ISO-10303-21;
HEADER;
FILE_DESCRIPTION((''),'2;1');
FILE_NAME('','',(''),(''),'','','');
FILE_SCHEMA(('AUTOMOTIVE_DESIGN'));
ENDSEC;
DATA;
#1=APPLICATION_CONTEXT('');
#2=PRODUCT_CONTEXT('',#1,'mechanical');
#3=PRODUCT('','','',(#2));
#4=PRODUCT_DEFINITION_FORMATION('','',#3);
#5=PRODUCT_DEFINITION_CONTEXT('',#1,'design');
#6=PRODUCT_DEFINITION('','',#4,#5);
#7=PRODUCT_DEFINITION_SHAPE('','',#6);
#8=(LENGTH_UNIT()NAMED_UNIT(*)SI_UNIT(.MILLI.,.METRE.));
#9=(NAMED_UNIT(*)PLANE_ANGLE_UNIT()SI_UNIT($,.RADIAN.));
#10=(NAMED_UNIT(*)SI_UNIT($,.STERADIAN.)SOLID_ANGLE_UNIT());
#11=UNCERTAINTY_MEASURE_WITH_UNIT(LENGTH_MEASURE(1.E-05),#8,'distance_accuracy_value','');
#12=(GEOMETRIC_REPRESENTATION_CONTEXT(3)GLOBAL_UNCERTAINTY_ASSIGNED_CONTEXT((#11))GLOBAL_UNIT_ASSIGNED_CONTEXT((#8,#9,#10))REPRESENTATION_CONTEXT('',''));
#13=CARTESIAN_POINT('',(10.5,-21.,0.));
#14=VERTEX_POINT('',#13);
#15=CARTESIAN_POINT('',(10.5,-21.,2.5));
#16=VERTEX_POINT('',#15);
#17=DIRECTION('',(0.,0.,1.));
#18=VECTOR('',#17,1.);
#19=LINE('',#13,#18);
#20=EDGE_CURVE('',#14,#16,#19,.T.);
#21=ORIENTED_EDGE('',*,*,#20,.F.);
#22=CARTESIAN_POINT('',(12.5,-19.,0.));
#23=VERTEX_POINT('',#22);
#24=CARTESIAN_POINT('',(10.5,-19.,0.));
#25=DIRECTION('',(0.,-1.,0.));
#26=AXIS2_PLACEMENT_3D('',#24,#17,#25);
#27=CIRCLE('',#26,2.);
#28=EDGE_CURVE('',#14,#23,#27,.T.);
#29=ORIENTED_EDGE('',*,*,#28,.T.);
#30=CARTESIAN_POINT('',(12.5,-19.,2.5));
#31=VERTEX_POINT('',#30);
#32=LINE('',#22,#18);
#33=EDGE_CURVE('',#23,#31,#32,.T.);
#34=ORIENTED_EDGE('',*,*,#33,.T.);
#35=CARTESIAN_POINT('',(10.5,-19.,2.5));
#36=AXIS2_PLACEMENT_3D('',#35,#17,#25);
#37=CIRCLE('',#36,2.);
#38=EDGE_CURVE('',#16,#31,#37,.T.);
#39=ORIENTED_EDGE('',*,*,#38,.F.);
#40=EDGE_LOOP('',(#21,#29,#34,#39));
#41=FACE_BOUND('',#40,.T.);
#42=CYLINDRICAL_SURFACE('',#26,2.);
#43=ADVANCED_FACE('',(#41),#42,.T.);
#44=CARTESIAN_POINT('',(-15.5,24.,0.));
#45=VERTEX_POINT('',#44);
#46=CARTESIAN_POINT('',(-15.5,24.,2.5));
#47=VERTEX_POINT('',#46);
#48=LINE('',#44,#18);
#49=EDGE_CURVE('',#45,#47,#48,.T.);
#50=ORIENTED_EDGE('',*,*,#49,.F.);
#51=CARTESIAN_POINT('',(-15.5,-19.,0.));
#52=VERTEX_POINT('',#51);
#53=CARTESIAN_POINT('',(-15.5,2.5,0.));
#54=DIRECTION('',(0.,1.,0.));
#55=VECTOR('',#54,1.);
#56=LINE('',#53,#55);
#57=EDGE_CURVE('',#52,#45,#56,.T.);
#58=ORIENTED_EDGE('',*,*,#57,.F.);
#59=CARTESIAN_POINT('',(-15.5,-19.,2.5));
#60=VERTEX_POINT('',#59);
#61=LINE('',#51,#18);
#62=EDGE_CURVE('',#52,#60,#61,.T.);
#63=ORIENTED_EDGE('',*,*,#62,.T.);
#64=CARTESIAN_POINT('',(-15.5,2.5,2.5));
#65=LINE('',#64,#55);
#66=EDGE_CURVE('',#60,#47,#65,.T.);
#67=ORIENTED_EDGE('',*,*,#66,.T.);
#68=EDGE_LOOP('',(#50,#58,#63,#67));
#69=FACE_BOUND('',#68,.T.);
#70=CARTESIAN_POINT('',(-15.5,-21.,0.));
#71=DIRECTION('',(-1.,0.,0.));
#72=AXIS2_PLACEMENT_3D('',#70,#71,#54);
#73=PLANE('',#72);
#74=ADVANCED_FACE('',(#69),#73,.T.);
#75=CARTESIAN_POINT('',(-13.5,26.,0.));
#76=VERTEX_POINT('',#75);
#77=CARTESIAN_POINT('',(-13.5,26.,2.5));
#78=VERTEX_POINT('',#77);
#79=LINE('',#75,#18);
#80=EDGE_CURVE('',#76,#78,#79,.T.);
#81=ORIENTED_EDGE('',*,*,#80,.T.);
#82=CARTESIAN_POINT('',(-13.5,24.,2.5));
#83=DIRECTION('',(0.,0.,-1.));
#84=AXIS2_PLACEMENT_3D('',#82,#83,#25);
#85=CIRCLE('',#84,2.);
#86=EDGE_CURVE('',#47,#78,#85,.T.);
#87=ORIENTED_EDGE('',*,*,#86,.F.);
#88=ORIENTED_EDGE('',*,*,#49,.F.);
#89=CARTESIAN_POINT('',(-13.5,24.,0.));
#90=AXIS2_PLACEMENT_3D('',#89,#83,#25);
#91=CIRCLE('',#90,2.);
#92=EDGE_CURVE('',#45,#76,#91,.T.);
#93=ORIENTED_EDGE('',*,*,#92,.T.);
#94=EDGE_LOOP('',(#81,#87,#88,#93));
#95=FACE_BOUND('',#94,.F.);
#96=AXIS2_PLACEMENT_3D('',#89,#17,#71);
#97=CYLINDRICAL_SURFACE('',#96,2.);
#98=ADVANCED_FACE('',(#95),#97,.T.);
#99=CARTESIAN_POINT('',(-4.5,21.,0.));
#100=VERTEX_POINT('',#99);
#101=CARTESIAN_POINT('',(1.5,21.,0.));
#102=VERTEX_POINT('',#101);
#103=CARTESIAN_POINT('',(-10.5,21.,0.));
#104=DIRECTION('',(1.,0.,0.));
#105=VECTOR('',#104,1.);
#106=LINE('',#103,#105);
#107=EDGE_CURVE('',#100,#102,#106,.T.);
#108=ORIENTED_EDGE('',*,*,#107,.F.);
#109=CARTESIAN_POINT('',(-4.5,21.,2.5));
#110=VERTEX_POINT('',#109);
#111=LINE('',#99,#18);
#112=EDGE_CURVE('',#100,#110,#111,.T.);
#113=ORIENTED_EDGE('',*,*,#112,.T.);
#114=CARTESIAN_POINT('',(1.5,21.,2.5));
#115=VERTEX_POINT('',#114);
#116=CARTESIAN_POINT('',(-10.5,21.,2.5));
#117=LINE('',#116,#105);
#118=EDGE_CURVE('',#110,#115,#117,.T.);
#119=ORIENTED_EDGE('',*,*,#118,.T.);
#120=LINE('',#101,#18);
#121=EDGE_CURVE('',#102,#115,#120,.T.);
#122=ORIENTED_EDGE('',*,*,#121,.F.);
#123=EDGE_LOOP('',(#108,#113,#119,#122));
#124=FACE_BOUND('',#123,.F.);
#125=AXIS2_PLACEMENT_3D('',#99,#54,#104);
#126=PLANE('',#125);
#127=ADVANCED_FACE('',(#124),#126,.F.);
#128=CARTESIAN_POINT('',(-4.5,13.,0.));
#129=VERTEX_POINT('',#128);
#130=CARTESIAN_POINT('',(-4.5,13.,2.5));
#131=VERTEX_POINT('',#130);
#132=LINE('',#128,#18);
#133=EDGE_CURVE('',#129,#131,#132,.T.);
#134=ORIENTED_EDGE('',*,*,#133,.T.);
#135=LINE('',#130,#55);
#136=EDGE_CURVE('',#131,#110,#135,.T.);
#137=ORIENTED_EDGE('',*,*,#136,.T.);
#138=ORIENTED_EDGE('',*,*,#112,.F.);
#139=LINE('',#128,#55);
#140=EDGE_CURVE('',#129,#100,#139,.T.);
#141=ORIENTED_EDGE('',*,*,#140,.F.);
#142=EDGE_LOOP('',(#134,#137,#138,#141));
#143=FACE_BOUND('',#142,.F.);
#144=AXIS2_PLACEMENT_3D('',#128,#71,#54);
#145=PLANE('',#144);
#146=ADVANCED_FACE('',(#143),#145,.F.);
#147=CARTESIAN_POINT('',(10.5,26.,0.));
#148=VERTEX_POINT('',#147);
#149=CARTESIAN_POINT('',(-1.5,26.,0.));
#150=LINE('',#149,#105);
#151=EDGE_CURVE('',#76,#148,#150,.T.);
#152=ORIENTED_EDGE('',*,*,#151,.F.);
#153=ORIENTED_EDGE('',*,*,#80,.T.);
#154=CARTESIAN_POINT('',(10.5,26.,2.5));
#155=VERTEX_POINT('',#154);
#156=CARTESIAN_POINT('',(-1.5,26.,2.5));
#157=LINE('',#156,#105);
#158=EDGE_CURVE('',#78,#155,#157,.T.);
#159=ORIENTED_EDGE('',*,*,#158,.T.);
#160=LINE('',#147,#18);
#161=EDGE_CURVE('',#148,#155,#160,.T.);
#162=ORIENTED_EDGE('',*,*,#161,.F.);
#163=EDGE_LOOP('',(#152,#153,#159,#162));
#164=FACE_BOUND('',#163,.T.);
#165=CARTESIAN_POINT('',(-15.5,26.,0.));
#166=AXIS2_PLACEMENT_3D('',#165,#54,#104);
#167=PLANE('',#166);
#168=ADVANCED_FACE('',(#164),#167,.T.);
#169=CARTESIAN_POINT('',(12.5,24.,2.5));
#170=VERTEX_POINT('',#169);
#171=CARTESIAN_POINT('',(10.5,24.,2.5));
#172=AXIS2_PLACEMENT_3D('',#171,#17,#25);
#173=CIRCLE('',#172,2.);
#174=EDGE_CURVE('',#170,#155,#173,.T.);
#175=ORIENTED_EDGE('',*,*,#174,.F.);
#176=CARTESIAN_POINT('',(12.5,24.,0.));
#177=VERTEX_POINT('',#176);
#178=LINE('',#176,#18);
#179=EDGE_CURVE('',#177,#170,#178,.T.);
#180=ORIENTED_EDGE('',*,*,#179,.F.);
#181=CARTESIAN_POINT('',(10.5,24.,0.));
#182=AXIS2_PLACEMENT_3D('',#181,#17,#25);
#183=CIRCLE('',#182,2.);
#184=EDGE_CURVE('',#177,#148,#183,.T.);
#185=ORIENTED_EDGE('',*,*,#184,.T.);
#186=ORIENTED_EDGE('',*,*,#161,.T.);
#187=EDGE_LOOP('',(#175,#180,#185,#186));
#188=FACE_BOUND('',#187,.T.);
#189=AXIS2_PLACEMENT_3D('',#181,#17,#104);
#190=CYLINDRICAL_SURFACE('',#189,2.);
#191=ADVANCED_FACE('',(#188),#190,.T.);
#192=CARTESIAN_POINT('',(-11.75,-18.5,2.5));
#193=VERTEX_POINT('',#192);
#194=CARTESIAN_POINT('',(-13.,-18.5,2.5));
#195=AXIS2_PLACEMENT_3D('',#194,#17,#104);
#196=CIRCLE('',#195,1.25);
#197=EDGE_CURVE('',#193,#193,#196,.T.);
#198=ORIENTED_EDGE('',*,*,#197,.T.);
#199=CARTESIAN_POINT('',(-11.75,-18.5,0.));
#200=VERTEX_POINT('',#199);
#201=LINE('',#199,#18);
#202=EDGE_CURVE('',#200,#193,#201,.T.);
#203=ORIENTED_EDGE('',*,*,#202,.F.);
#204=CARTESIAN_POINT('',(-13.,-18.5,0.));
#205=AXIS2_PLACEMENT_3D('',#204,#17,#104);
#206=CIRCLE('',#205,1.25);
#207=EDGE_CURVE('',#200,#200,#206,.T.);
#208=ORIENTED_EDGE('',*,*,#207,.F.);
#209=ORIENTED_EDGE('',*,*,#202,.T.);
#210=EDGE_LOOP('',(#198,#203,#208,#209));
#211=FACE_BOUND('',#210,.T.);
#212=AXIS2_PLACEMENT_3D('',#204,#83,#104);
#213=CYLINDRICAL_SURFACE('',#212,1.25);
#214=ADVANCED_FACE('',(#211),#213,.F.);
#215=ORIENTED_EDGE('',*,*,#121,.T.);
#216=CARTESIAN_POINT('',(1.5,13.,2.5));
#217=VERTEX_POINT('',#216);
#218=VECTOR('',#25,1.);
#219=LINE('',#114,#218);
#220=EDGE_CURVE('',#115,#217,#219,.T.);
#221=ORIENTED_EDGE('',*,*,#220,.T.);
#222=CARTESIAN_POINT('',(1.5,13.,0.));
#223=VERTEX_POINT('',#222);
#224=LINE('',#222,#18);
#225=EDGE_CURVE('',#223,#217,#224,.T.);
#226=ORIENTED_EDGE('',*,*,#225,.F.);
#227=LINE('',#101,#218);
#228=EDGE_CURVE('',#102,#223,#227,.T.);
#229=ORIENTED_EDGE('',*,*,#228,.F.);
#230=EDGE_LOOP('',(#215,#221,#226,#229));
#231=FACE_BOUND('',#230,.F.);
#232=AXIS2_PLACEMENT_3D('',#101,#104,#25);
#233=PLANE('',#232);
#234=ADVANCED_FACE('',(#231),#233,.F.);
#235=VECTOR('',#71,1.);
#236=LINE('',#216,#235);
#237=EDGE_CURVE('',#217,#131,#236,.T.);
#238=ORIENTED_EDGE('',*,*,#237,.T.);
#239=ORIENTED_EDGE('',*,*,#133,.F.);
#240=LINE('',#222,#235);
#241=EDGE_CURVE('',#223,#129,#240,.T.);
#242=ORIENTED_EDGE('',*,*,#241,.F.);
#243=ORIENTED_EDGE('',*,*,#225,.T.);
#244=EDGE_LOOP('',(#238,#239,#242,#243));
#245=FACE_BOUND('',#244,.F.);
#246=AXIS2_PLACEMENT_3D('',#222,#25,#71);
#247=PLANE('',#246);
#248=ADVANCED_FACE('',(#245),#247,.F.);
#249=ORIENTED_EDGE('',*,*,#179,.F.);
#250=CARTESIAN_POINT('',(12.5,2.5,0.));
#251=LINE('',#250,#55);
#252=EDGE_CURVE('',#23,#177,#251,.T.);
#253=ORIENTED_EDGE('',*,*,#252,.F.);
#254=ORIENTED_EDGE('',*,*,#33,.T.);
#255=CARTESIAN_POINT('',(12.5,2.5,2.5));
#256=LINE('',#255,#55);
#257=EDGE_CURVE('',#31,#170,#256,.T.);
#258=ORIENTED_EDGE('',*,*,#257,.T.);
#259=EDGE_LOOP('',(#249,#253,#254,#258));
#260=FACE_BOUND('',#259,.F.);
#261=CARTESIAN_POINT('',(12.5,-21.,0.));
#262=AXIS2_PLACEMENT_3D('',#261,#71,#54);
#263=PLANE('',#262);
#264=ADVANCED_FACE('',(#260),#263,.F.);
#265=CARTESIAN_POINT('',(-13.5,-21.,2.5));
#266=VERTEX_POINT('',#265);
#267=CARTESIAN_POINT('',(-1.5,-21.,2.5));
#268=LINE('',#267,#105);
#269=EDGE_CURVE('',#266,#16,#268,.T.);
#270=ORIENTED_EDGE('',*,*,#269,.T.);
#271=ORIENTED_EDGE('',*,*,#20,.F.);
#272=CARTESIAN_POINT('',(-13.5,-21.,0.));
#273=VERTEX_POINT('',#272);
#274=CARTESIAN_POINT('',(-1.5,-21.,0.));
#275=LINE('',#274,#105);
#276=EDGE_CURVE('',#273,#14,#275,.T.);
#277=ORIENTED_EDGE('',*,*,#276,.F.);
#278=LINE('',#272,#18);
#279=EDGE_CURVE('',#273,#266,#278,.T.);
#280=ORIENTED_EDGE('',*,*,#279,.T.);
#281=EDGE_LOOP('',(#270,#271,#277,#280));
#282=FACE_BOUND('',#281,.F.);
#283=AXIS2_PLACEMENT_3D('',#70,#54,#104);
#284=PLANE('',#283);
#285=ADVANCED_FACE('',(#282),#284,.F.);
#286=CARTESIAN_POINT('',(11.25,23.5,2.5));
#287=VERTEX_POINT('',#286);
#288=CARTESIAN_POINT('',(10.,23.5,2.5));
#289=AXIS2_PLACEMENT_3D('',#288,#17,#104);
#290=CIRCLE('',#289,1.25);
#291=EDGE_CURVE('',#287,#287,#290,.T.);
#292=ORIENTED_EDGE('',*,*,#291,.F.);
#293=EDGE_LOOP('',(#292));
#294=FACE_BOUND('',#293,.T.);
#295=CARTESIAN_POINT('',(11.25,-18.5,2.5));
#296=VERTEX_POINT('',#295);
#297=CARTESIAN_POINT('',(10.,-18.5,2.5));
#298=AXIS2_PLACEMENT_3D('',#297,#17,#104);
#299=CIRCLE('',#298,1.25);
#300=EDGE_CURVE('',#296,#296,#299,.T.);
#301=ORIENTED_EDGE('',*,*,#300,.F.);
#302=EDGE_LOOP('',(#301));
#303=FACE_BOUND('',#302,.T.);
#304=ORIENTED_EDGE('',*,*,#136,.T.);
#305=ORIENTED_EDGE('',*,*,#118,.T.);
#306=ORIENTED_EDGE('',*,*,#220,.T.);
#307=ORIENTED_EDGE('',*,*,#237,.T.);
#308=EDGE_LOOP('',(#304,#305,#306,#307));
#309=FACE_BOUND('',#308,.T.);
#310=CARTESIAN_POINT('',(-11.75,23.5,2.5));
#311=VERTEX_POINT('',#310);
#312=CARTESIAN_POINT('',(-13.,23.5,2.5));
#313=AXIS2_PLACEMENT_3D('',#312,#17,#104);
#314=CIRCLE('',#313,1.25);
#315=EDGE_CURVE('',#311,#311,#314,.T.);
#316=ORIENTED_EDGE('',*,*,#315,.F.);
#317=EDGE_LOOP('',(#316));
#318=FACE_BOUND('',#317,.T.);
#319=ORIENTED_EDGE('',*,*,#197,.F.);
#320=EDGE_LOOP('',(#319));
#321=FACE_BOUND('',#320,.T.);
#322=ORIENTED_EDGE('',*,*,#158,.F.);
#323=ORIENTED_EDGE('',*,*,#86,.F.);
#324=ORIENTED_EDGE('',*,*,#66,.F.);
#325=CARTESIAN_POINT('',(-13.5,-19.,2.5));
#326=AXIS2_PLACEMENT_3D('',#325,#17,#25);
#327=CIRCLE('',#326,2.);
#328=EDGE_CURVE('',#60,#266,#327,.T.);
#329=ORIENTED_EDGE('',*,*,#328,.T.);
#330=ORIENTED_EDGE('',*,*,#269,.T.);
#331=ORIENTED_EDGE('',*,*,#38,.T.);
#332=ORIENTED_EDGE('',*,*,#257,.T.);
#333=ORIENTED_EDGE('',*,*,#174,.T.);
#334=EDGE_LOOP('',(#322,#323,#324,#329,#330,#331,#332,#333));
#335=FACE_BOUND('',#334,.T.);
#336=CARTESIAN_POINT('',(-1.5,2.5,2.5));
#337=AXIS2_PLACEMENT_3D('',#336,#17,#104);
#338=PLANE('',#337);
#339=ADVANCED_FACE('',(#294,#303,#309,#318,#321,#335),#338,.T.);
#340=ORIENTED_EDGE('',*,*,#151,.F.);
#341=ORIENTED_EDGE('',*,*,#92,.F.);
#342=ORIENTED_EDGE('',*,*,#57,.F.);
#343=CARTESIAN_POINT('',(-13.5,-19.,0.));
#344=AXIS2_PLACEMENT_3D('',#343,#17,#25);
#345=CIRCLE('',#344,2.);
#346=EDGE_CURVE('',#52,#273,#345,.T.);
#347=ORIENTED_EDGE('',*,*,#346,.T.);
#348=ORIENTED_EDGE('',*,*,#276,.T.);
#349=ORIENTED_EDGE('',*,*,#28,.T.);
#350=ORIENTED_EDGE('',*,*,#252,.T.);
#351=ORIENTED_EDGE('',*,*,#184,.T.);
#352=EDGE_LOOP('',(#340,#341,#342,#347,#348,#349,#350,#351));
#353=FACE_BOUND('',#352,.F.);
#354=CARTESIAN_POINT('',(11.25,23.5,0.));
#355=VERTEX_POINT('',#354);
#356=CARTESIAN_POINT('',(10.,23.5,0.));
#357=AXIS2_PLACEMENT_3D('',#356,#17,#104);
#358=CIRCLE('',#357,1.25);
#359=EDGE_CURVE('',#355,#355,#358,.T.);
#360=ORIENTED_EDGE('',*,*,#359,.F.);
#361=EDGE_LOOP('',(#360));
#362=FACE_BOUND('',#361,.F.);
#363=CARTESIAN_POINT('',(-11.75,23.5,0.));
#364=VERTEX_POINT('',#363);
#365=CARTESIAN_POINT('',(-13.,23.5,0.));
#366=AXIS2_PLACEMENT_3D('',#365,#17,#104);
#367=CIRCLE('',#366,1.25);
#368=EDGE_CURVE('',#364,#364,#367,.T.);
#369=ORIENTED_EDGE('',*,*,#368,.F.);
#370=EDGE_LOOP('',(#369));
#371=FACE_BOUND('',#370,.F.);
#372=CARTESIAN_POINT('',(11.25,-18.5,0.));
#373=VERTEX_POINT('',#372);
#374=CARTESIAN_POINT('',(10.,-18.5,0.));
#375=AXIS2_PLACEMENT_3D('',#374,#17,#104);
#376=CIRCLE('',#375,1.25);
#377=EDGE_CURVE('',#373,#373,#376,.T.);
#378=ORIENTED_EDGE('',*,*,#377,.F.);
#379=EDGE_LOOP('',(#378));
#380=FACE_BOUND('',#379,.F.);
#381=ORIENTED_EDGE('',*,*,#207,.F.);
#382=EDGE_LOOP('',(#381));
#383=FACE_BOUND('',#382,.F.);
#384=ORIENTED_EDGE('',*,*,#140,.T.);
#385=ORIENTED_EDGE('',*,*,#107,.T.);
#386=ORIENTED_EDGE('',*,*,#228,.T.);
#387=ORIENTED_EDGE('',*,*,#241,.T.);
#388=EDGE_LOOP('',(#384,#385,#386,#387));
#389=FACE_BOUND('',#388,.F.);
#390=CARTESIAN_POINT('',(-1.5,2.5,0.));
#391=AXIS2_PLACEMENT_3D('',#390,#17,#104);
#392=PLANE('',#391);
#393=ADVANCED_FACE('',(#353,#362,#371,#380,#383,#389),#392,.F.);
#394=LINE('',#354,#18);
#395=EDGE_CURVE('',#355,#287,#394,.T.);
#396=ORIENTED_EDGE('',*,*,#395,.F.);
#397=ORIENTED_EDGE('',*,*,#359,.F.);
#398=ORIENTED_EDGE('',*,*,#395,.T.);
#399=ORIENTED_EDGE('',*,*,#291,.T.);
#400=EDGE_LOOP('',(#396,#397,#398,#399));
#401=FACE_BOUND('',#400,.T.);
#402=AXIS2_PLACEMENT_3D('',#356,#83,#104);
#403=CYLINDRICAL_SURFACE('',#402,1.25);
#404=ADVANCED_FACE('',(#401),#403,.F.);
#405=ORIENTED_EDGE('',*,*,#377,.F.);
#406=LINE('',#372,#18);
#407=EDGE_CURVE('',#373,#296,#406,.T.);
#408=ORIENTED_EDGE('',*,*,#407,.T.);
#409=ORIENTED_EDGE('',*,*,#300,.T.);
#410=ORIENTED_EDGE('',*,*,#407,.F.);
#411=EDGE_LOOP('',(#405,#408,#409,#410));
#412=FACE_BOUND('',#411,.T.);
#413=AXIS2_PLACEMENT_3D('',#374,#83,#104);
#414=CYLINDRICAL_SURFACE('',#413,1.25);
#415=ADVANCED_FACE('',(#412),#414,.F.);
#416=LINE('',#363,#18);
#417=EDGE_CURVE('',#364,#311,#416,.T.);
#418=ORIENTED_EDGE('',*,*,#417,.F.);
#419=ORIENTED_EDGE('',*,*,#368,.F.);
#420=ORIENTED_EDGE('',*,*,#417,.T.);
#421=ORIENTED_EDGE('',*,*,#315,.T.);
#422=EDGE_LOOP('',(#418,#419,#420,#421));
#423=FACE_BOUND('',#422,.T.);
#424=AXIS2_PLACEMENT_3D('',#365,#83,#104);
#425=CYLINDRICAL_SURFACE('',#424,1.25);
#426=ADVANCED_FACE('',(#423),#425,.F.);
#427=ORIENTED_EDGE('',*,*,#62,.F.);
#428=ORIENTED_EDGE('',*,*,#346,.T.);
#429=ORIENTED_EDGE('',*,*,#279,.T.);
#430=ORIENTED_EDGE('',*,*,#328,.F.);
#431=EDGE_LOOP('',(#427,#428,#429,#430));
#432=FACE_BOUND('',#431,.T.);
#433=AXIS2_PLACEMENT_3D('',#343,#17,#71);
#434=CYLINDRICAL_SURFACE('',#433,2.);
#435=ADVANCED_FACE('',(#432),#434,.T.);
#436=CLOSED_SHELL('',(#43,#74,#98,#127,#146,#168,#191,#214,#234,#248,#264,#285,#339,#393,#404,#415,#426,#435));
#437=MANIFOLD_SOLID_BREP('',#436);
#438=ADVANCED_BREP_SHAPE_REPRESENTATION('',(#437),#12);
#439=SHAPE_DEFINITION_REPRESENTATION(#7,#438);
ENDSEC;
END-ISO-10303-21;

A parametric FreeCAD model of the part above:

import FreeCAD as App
import Part
import Sketcher
from FreeCAD import Vector


def edges_at(feature, points):
    """Names of the edges that pass closest to the given points."""
    edges = feature.Shape.Edges
    near = lambda p: min(range(len(edges)), key=lambda i: edges[i].distToShape(Part.Vertex(*p))[0])
    return sorted({f"Edge{near(p) + 1}" for p in points})


def add_polygon(sketch, points):
    """Adds a closed chain of lines whose ends are joined by coincident constraints."""
    first, n = sketch.GeometryCount, len(points)
    for a, b in zip(points, points[1:] + points[:1]):
        sketch.addGeometry(Part.LineSegment(App.Vector(*a, 0), App.Vector(*b, 0)), False)
    for i in range(n):
        sketch.addConstraint(Sketcher.Constraint("Coincident", first + i, 2, first + (i + 1) % n, 1))

doc = App.newDocument("Part")
body = doc.addObject("PartDesign::Body", "Body")

sketch1 = body.newObject("Sketcher::SketchObject", "Sketch")
sketch1.AttachmentSupport = (doc.getObject("XY_Plane"), [""])
sketch1.MapMode = "FlatFace"
add_polygon(sketch1, [(-15.5, 26), (-15.5, -21), (12.5, -21), (12.5, 26)])
sketch1.addGeometry(Part.Circle(Vector(-13, -18.5, 0), Vector(0, 0, 1), 1.2), False)
sketch1.addGeometry(Part.Circle(Vector(10, -18.5, 0), Vector(0, 0, 1), 1.2), False)
sketch1.addGeometry(Part.Circle(Vector(-13, 23.5, 0), Vector(0, 0, 1), 1.2), False)
add_polygon(sketch1, [(-4.5, 21), (1.5, 21), (1.5, 13), (-4.5, 13)])
sketch1.addGeometry(Part.Circle(Vector(10, 23.5, 0), Vector(0, 0, 1), 1.2), False)
sketch1.addConstraint(Sketcher.Constraint("Vertical", 0))
sketch1.addConstraint(Sketcher.Constraint("Horizontal", 1))
sketch1.addConstraint(Sketcher.Constraint("Vertical", 2))
sketch1.addConstraint(Sketcher.Constraint("Horizontal", 3))
sketch1.addConstraint(Sketcher.Constraint("Horizontal", 7))
sketch1.addConstraint(Sketcher.Constraint("Vertical", 8))
sketch1.addConstraint(Sketcher.Constraint("Horizontal", 9))
sketch1.addConstraint(Sketcher.Constraint("Vertical", 10))
sketch1.addConstraint(Sketcher.Constraint("Equal", 4, 5))
sketch1.addConstraint(Sketcher.Constraint("Equal", 5, 6))
sketch1.addConstraint(Sketcher.Constraint("Equal", 6, 11))
sketch1.addConstraint(Sketcher.Constraint("Horizontal", 4, 3, 5, 3))
sketch1.addConstraint(Sketcher.Constraint("Horizontal", 6, 3, 11, 3))
sketch1.addConstraint(Sketcher.Constraint("Vertical", 4, 3, 6, 3))
sketch1.addConstraint(Sketcher.Constraint("Vertical", 5, 3, 11, 3))
sketch1.addConstraint(Sketcher.Constraint("Diameter", 4, 2.5))
sketch1.addConstraint(Sketcher.Constraint("DistanceX", 1, 1, 1, 2, 28.0))
sketch1.addConstraint(Sketcher.Constraint("DistanceX", 7, 1, 7, 2, 6.0))
sketch1.addConstraint(Sketcher.Constraint("DistanceY", 0, 2, 0, 1, 47.0))
sketch1.addConstraint(Sketcher.Constraint("DistanceY", 8, 2, 8, 1, 8.0))
sketch1.addConstraint(Sketcher.Constraint("DistanceX", 4, 3, -1, 1, 13.0))
sketch1.addConstraint(Sketcher.Constraint("DistanceX", -1, 1, 5, 3, 10.0))
sketch1.addConstraint(Sketcher.Constraint("DistanceY", 0, 2, -1, 1, 21.0))
sketch1.addConstraint(Sketcher.Constraint("DistanceY", -1, 1, 7, 2, 21.0))
sketch1.addConstraint(Sketcher.Constraint("DistanceY", 4, 3, 6, 3, 42.0))
sketch1.addConstraint(Sketcher.Constraint("DistanceX", 7, 2, 2, 2, 11.0))
sketch1.addConstraint(Sketcher.Constraint("DistanceY", 4, 3, -1, 1, 18.5))
sketch1.addConstraint(Sketcher.Constraint("DistanceX", 0, 2, -1, 1, 15.5))
pad1 = body.newObject("PartDesign::Pad", "Pad")
pad1.Profile = sketch1
pad1.Length = 2.5
doc.recompute()

fillet = body.newObject("PartDesign::Fillet", "Fillet")
fillet.Base = (pad1, edges_at(pad1, [
    (-15.5, 26, 1.25),
    (12.5, 26, 1.25),
    (12.5, -21, 1.25),
    (-15.5, -21, 1.25),
]))
fillet.Radius = 2

doc.recompute()
